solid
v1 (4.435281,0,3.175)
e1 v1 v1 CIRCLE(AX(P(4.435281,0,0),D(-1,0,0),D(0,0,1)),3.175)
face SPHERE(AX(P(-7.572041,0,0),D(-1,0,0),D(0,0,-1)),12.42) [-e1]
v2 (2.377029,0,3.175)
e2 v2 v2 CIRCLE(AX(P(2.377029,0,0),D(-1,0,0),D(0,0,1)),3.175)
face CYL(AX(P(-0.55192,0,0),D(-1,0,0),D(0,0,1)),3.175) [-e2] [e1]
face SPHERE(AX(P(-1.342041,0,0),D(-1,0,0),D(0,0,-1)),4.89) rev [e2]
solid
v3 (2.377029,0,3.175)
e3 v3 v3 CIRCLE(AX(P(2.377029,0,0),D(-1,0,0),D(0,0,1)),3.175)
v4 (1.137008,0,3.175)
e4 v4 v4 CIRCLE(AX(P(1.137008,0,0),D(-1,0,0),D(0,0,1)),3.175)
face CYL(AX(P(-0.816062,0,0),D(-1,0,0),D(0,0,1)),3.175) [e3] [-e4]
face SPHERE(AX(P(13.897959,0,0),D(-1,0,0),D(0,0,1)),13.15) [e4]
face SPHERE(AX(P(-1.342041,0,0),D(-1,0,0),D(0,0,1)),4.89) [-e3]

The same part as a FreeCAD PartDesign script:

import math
import FreeCAD as App
import Part
import Sketcher

doc = App.newDocument("Part")
body = doc.addObject("PartDesign::Body", "Body")

# Sketch on XZ plane
sketch1 = doc.addObject("Sketcher::SketchObject", "Sketch")
body.addObject(sketch1)
sketch1.AttachmentSupport = (doc.XZ_Plane, [""])
sketch1.MapMode = "FlatFace"
sketch1.addGeometry(Part.ArcOfCircle(Part.Circle(App.Vector(13.9, 0, 0), App.Vector(0, 0, 1), 13.2), math.radians(-180), math.radians(-166.03)), False)
sketch1.addGeometry(Part.LineSegment(App.Vector(0.7, 0, 0), App.Vector(3.5, 0, 0)), False)
sketch1.addGeometry(Part.ArcOfCircle(Part.Circle(App.Vector(-1.3, 0, 0), App.Vector(0, 0, 1), 4.9), math.radians(-40), math.radians(0)), False)
sketch1.addGeometry(Part.LineSegment(App.Vector(2.4, -3.2, 0), App.Vector(1.1, -3.2, 0)), False)
sketch1.addConstraint(Sketcher.Constraint("Coincident", 0, 1, 1, 1))
sketch1.addConstraint(Sketcher.Constraint("Coincident", 1, 2, 2, 2))
sketch1.addConstraint(Sketcher.Constraint("Coincident", 2, 1, 3, 1))
sketch1.addConstraint(Sketcher.Constraint("Coincident", 3, 2, 0, 2))
sketch1.addConstraint(Sketcher.Constraint("Horizontal", 1))
sketch1.addConstraint(Sketcher.Constraint("Horizontal", 3))
sketch1.addConstraint(Sketcher.Constraint("PointOnObject", 0, 3, -1))
sketch1.addConstraint(Sketcher.Constraint("PointOnObject", 2, 3, -1))
sketch1.addConstraint(Sketcher.Constraint("PointOnObject", 0, 1, -1))
sketch1.addConstraint(Sketcher.Constraint("Radius", 0, 13.15))
sketch1.addConstraint(Sketcher.Constraint("Radius", 2, 4.89))
sketch1.addConstraint(Sketcher.Constraint("DistanceX", 1, 1, 1, 2, 2.8))
sketch1.addConstraint(Sketcher.Constraint("DistanceY", 2, 1, -1, 1, 3.175))
sketch1.addConstraint(Sketcher.Constraint("DistanceX", -1, 1, 0, 3, 13.897959))
revolution = doc.addObject("PartDesign::Revolution", "Revolution")
body.addObject(revolution)
revolution.Profile = sketch1
revolution.ReferenceAxis = (sketch1, ["H_Axis"])
revolution.Angle = 360
body2 = doc.addObject("PartDesign::Body", "Body001")

# Sketch on XZ plane
sketch2 = doc.addObject("Sketcher::SketchObject", "Sketch001")
body2.addObject(sketch2)
sketch2.AttachmentSupport = (doc.getObject("XZ_Plane001"), [""])
sketch2.MapMode = "FlatFace"
sketch2.addGeometry(Part.LineSegment(App.Vector(4.4, -3.2, 0), App.Vector(2.4, -3.2, 0)), False)
sketch2.addGeometry(Part.ArcOfCircle(Part.Circle(App.Vector(-1.3, 0, 0), App.Vector(0, 0, 1), 4.9), math.radians(-40), math.radians(0)), False)
sketch2.addGeometry(Part.LineSegment(App.Vector(3.5, 0, 0), App.Vector(4.8, 0, 0)), False)
sketch2.addGeometry(Part.ArcOfCircle(Part.Circle(App.Vector(-7.6, 0, 0), App.Vector(0, 0, 1), 12.4), math.radians(-14.81), math.radians(0)), False)
sketch2.addConstraint(Sketcher.Constraint("Coincident", 0, 2, 1, 1))
sketch2.addConstraint(Sketcher.Constraint("Coincident", 1, 2, 2, 1))
sketch2.addConstraint(Sketcher.Constraint("Coincident", 2, 2, 3, 2))
sketch2.addConstraint(Sketcher.Constraint("Coincident", 3, 1, 0, 1))
sketch2.addConstraint(Sketcher.Constraint("Horizontal", 0))
sketch2.addConstraint(Sketcher.Constraint("Horizontal", 2))
sketch2.addConstraint(Sketcher.Constraint("PointOnObject", 1, 3, -1))
sketch2.addConstraint(Sketcher.Constraint("PointOnObject", 3, 3, -1))
sketch2.addConstraint(Sketcher.Constraint("PointOnObject", 1, 2, -1))
sketch2.addConstraint(Sketcher.Constraint("Radius", 1, 4.89))
sketch2.addConstraint(Sketcher.Constraint("Radius", 3, 12.42))
sketch2.addConstraint(Sketcher.Constraint("DistanceX", 2, 1, 2, 2, 1.3))
sketch2.addConstraint(Sketcher.Constraint("DistanceY", 0, 2, -1, 1, 3.175))
sketch2.addConstraint(Sketcher.Constraint("DistanceX", 1, 3, -1, 1, 1.342041))
revolution2 = doc.addObject("PartDesign::Revolution", "Revolution001")
body2.addObject(revolution2)
revolution2.Profile = sketch2
revolution2.ReferenceAxis = (sketch2, ["H_Axis"])
revolution2.Angle = 360

doc.recompute()
